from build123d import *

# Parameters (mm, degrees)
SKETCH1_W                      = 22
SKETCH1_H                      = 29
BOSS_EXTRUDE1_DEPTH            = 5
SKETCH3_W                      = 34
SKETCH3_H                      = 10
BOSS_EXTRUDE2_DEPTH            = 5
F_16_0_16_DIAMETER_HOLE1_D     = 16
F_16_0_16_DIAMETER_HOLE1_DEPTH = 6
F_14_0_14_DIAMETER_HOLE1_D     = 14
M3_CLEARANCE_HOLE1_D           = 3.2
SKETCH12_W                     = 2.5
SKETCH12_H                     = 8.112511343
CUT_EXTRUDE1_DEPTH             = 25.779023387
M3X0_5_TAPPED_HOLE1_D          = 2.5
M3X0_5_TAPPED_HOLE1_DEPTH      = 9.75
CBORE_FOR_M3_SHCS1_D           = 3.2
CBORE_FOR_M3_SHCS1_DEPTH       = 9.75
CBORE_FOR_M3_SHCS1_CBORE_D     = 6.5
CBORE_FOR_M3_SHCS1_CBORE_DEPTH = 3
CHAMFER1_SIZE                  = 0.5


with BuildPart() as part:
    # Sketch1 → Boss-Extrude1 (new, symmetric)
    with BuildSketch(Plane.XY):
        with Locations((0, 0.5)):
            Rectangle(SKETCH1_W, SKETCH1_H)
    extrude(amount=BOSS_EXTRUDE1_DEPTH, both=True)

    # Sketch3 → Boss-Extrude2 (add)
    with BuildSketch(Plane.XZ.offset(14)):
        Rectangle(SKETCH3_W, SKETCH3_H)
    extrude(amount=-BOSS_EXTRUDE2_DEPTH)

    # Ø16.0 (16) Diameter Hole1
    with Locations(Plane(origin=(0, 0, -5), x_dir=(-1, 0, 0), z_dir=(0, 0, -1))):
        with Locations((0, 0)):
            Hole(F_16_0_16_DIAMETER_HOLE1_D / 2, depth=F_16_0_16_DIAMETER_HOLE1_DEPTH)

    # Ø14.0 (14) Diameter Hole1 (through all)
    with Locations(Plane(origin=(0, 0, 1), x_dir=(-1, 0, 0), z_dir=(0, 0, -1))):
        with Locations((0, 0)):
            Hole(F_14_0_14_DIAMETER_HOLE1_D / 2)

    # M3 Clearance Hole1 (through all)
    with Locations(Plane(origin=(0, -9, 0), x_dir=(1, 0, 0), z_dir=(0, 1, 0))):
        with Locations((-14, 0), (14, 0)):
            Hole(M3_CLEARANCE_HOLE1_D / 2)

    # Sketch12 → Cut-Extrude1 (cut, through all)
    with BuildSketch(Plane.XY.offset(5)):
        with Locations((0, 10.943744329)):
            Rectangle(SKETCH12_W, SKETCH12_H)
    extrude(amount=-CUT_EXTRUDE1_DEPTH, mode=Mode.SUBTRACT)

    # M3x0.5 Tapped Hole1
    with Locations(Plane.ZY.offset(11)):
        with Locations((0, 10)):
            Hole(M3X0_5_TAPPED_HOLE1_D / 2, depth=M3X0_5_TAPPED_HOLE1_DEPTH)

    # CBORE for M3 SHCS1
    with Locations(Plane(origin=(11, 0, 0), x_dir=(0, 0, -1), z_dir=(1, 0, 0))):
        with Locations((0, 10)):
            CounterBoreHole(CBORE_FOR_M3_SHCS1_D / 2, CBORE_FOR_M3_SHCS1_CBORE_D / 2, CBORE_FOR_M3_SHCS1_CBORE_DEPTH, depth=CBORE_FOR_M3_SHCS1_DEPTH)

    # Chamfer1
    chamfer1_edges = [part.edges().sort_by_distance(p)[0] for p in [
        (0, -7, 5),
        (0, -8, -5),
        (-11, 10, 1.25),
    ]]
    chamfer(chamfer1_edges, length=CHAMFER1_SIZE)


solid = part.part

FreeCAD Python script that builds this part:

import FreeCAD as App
import Part
import Sketcher


def edges_at(feature, points):
    """Names of the edges that pass closest to the given points."""
    edges = feature.Shape.Edges
    near = lambda p: min(range(len(edges)), key=lambda i: edges[i].distToShape(Part.Vertex(*p))[0])
    return sorted({f"Edge{near(p) + 1}" for p in points})


def add_polygon(sketch, points):
    """Adds a closed chain of lines whose ends are joined by coincident constraints."""
    first, n = sketch.GeometryCount, len(points)
    for a, b in zip(points, points[1:] + points[:1]):
        sketch.addGeometry(Part.LineSegment(App.Vector(*a, 0), App.Vector(*b, 0)), False)
    for i in range(n):
        sketch.addConstraint(Sketcher.Constraint("Coincident", first + i, 2, first + (i + 1) % n, 1))

doc = App.newDocument("Part")
body = doc.addObject("PartDesign::Body", "Body")

# Sketch on XY plane
sketch1 = body.newObject("Sketcher::SketchObject", "Sketch")
sketch1.AttachmentSupport = (doc.getObject("XY_Plane"), [""])
sketch1.MapMode = "FlatFace"
add_polygon(sketch1, [(-11, 15), (-11, -14), (11, -14), (11, 15)])  # lines 0-3
sketch1.addConstraint([
    Sketcher.Constraint("Vertical", 0),
    Sketcher.Constraint("Horizontal", 1),
    Sketcher.Constraint("Vertical", 2),
    Sketcher.Constraint("Horizontal", 3),
    Sketcher.Constraint("DistanceX", 1, 1, 1, 2, 22.0),
    Sketcher.Constraint("DistanceY", 0, 2, 0, 1, 29.0),
    Sketcher.Constraint("DistanceX", 0, 2, -1, 1, 11.0),
    Sketcher.Constraint("DistanceY", 0, 2, -1, 1, 14.0),
])
pad1 = body.newObject("PartDesign::Pad", "Pad")
pad1.Profile = sketch1
pad1.Length = 10
pad1.Midplane = True

# Sketch on XZ plane
sketch2 = body.newObject("Sketcher::SketchObject", "Sketch001")
sketch2.AttachmentSupport = (doc.getObject("XZ_Plane"), [""])
sketch2.MapMode = "FlatFace"
sketch2.AttachmentOffset = App.Placement(App.Vector(0, 0, 14), App.Rotation())
add_polygon(sketch2, [(-17, 5), (-17, -5), (17, -5), (17, 5)])  # lines 0-3
sketch2.addConstraint([
    Sketcher.Constraint("Vertical", 0),
    Sketcher.Constraint("Horizontal", 1),
    Sketcher.Constraint("Vertical", 2),
    Sketcher.Constraint("Horizontal", 3),
    Sketcher.Constraint("Symmetric", 0, 2, 2, 2, -1, 1),
    Sketcher.Constraint("DistanceX", 1, 1, 1, 2, 34.0),
    Sketcher.Constraint("DistanceY", 0, 2, 0, 1, 10.0),
])
pad2 = body.newObject("PartDesign::Pad", "Pad001")
pad2.Profile = sketch2
pad2.Length = 5
pad2.Reversed = True

# Sketch on XY plane
sketch3 = body.newObject("Sketcher::SketchObject", "Sketch002")
sketch3.AttachmentSupport = (doc.getObject("XY_Plane"), [""])
sketch3.MapMode = "FlatFace"
sketch3.AttachmentOffset = App.Placement(App.Vector(0, 0, -5), App.Rotation())
sketch3.addGeometry(Part.Circle(App.Vector(0, 0, 0), App.Vector(0, 0, 1), 8), False)
sketch3.addConstraint([
    Sketcher.Constraint("Coincident", 0, 3, -1, 1),
    Sketcher.Constraint("Diameter", 0, 16.0),
])
doc.recompute()
hole = body.newObject("PartDesign::Hole", "Hole")
hole.Profile = sketch3
hole.ThreadType = "None"
hole.Diameter = 16
hole.DepthType = "Dimension"
hole.Depth = 6
hole.DrillPoint = "Flat"
hole.Reversed = True

# Sketch on XY plane
sketch4 = body.newObject("Sketcher::SketchObject", "Sketch003")
sketch4.AttachmentSupport = (doc.getObject("XY_Plane"), [""])
sketch4.MapMode = "FlatFace"
sketch4.AttachmentOffset = App.Placement(App.Vector(0, 0, 1), App.Rotation())
sketch4.addGeometry(Part.Circle(App.Vector(0, 0, 0), App.Vector(0, 0, 1), 7), False)
sketch4.addConstraint([
    Sketcher.Constraint("Coincident", 0, 3, -1, 1),
    Sketcher.Constraint("Diameter", 0, 14.0),
])
doc.recompute()
hole2 = body.newObject("PartDesign::Hole", "Hole001")
hole2.Profile = sketch4
hole2.ThreadType = "None"
hole2.Diameter = 14
hole2.DepthType = "ThroughAll"
hole2.Reversed = True

# Sketch on XZ plane
sketch5 = body.newObject("Sketcher::SketchObject", "Sketch004")
sketch5.AttachmentSupport = (doc.getObject("XZ_Plane"), [""])
sketch5.MapMode = "FlatFace"
sketch5.AttachmentOffset = App.Placement(App.Vector(0, 0, 9), App.Rotation())
sketch5.addGeometry([
    Part.Circle(App.Vector(-14, 0, 0), App.Vector(0, 0, 1), 1.6),
    Part.Circle(App.Vector(14, 0, 0), App.Vector(0, 0, 1), 1.6),
], False)
sketch5.addConstraint([
    Sketcher.Constraint("Equal", 0, 1),
    Sketcher.Constraint("Symmetric", 0, 3, 1, 3, -1, 1),
    Sketcher.Constraint("PointOnObject", 0, 3, -1),
    Sketcher.Constraint("Diameter", 0, 3.2),
    Sketcher.Constraint("DistanceX", 0, 3, -1, 1, 14.0),
])
doc.recompute()
hole3 = body.newObject("PartDesign::Hole", "Hole002")
hole3.Profile = sketch5
hole3.ThreadType = "None"
hole3.Diameter = 3.2
hole3.DepthType = "ThroughAll"
hole3.Reversed = True

# Sketch on XY plane
sketch6 = body.newObject("Sketcher::SketchObject", "Sketch005")
sketch6.AttachmentSupport = (doc.getObject("XY_Plane"), [""])
sketch6.MapMode = "FlatFace"
sketch6.AttachmentOffset = App.Placement(App.Vector(0, 0, 5), App.Rotation())
add_polygon(sketch6, [(-1.2, 15), (-1.2, 6.9), (1.2, 6.9), (1.2, 15)])  # lines 0-3
sketch6.addConstraint([
    Sketcher.Constraint("Vertical", 0),
    Sketcher.Constraint("Horizontal", 1),
    Sketcher.Constraint("Vertical", 2),
    Sketcher.Constraint("Horizontal", 3),
    Sketcher.Constraint("DistanceX", 1, 1, 1, 2, 2.5),
    Sketcher.Constraint("DistanceY", -1, 1, 2, 2, 15.0),
    Sketcher.Constraint("DistanceX", 0, 2, -1, 1, 1.25),
    Sketcher.Constraint("DistanceY", 0, 2, 0, 1, 8.112511),
])
pocket1 = body.newObject("PartDesign::Pocket", "Pocket")
pocket1.Profile = sketch6
pocket1.Type = "ThroughAll"

# Sketch on YZ plane
sketch7 = body.newObject("Sketcher::SketchObject", "Sketch006")
sketch7.AttachmentSupport = (doc.getObject("YZ_Plane"), [""])
sketch7.MapMode = "FlatFace"
sketch7.AttachmentOffset = App.Placement(App.Vector(0, 0, -11), App.Rotation())
sketch7.addGeometry(Part.Circle(App.Vector(10, 0, 0), App.Vector(0, 0, 1), 1.2), False)
sketch7.addConstraint([
    Sketcher.Constraint("PointOnObject", 0, 3, -1),
    Sketcher.Constraint("Diameter", 0, 2.5),
    Sketcher.Constraint("DistanceX", -1, 1, 0, 3, 10.0),
])
doc.recompute()
hole4 = body.newObject("PartDesign::Hole", "Hole003")
hole4.Profile = sketch7
hole4.ThreadType = "None"
hole4.Diameter = 2.5
hole4.DepthType = "Dimension"
hole4.Depth = 9.75
hole4.DrillPoint = "Flat"
hole4.Reversed = True

# Sketch on YZ plane
sketch8 = body.newObject("Sketcher::SketchObject", "Sketch007")
sketch8.AttachmentSupport = (doc.getObject("YZ_Plane"), [""])
sketch8.MapMode = "FlatFace"
sketch8.AttachmentOffset = App.Placement(App.Vector(0, 0, 11), App.Rotation())
sketch8.addGeometry(Part.Circle(App.Vector(10, 0, 0), App.Vector(0, 0, 1), 1.6), False)
sketch8.addConstraint([
    Sketcher.Constraint("PointOnObject", 0, 3, -1),
    Sketcher.Constraint("Diameter", 0, 3.2),
    Sketcher.Constraint("DistanceX", -1, 1, 0, 3, 10.0),
])
doc.recompute()
hole5 = body.newObject("PartDesign::Hole", "Hole004")
hole5.Profile = sketch8
hole5.ThreadType = "None"
hole5.Diameter = 3.2
hole5.DepthType = "Dimension"
hole5.Depth = 9.75
hole5.DrillPoint = "Flat"
hole5.HoleCutType = "Counterbore"
hole5.HoleCutDiameter = 6.5
hole5.HoleCutDepth = 3
doc.recompute()

chamfer = body.newObject("PartDesign::Chamfer", "Chamfer")
chamfer.Base = (hole5, edges_at(hole5, [(0, -7, 5), (0, -8, -5), (-11, 10, 1.25)]))
chamfer.Size = 0.5

doc.recompute()
